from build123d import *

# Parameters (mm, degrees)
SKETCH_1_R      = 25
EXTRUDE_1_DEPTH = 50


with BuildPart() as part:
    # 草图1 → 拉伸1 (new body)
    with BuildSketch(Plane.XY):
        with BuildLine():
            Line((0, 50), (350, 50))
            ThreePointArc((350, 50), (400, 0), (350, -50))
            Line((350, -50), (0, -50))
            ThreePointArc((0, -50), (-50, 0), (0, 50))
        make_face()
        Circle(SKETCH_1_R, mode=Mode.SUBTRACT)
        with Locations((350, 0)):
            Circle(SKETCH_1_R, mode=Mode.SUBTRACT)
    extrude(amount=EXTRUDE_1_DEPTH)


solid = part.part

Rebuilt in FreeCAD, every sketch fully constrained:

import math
import FreeCAD as App
import Part
import Sketcher
from FreeCAD import Vector
Q = App.Units.Quantity

doc = App.newDocument("Part")
params = doc.addObject("Spreadsheet::Sheet", "Params")
for row, (alias, value) in enumerate([
    ("sketch1_diameter", "50 mm"),
    ("sketch1_radius", "50 mm"),
    ("sketch1_width", "350 mm"),
    ("pad1_length", "50 mm"),
], start=1):
    params.set(f"A{row}", alias)
    params.set(f"B{row}", "=" + value)
    params.setAlias(f"B{row}", alias)

body = doc.addObject("PartDesign::Body", "Body")

# Sketch on XY plane
sketch1 = body.newObject("Sketcher::SketchObject", "Sketch")
sketch1.AttachmentSupport = (doc.getObject("XY_Plane"), [""])
sketch1.MapMode = "FlatFace"
sketch1.addGeometry([
    Part.LineSegment(Vector(350, 50, 0), Vector(0, 50, 0)),  # 0
    Part.ArcOfCircle(Part.Circle(Vector(0, 0, 0), Vector(0, 0, 1), 50), math.radians(90), math.radians(270)),  # 1
    Part.LineSegment(Vector(0, -50, 0), Vector(350, -50, 0)),  # 2
    Part.ArcOfCircle(Part.Circle(Vector(350, 0, 0), Vector(0, 0, 1), 50), math.radians(-90), math.radians(90)),  # 3
    Part.Circle(Vector(350, 0, 0), Vector(0, 0, 1), 25),  # 4
    Part.Circle(Vector(0, 0, 0), Vector(0, 0, 1), 25),  # 5
], False)
sketch1.addConstraint([
    Sketcher.Constraint("Tangent", 0, 2, 1, 1),
    Sketcher.Constraint("Tangent", 1, 2, 2, 1),
    Sketcher.Constraint("Tangent", 2, 2, 3, 1),
    Sketcher.Constraint("Tangent", 3, 2, 0, 1),
    Sketcher.Constraint("Horizontal", 0),
    Sketcher.Constraint("Horizontal", 2),
    Sketcher.Constraint("Coincident", 1, 3, -1, 1),
    Sketcher.Constraint("Coincident", 5, 3, -1, 1),
    Sketcher.Constraint("Coincident", 4, 3, 3, 3),
    Sketcher.Constraint("Equal", 4, 5),
    Sketcher.Constraint("Diameter", 4, Q("50 mm")),
    Sketcher.Constraint("Radius", 1, Q("50 mm")),
    Sketcher.Constraint("DistanceX", 0, 2, 0, 1, Q("350 mm")),
])
sketch1.setExpression("Constraints[10]", "Params.sketch1_diameter")
sketch1.setExpression("Constraints[11]", "Params.sketch1_radius")
sketch1.setExpression("Constraints[12]", "Params.sketch1_width")
pad1 = body.newObject("PartDesign::Pad", "Pad")
pad1.Profile = sketch1
pad1.setExpression("Length", "Params.pad1_length")

doc.recompute()
